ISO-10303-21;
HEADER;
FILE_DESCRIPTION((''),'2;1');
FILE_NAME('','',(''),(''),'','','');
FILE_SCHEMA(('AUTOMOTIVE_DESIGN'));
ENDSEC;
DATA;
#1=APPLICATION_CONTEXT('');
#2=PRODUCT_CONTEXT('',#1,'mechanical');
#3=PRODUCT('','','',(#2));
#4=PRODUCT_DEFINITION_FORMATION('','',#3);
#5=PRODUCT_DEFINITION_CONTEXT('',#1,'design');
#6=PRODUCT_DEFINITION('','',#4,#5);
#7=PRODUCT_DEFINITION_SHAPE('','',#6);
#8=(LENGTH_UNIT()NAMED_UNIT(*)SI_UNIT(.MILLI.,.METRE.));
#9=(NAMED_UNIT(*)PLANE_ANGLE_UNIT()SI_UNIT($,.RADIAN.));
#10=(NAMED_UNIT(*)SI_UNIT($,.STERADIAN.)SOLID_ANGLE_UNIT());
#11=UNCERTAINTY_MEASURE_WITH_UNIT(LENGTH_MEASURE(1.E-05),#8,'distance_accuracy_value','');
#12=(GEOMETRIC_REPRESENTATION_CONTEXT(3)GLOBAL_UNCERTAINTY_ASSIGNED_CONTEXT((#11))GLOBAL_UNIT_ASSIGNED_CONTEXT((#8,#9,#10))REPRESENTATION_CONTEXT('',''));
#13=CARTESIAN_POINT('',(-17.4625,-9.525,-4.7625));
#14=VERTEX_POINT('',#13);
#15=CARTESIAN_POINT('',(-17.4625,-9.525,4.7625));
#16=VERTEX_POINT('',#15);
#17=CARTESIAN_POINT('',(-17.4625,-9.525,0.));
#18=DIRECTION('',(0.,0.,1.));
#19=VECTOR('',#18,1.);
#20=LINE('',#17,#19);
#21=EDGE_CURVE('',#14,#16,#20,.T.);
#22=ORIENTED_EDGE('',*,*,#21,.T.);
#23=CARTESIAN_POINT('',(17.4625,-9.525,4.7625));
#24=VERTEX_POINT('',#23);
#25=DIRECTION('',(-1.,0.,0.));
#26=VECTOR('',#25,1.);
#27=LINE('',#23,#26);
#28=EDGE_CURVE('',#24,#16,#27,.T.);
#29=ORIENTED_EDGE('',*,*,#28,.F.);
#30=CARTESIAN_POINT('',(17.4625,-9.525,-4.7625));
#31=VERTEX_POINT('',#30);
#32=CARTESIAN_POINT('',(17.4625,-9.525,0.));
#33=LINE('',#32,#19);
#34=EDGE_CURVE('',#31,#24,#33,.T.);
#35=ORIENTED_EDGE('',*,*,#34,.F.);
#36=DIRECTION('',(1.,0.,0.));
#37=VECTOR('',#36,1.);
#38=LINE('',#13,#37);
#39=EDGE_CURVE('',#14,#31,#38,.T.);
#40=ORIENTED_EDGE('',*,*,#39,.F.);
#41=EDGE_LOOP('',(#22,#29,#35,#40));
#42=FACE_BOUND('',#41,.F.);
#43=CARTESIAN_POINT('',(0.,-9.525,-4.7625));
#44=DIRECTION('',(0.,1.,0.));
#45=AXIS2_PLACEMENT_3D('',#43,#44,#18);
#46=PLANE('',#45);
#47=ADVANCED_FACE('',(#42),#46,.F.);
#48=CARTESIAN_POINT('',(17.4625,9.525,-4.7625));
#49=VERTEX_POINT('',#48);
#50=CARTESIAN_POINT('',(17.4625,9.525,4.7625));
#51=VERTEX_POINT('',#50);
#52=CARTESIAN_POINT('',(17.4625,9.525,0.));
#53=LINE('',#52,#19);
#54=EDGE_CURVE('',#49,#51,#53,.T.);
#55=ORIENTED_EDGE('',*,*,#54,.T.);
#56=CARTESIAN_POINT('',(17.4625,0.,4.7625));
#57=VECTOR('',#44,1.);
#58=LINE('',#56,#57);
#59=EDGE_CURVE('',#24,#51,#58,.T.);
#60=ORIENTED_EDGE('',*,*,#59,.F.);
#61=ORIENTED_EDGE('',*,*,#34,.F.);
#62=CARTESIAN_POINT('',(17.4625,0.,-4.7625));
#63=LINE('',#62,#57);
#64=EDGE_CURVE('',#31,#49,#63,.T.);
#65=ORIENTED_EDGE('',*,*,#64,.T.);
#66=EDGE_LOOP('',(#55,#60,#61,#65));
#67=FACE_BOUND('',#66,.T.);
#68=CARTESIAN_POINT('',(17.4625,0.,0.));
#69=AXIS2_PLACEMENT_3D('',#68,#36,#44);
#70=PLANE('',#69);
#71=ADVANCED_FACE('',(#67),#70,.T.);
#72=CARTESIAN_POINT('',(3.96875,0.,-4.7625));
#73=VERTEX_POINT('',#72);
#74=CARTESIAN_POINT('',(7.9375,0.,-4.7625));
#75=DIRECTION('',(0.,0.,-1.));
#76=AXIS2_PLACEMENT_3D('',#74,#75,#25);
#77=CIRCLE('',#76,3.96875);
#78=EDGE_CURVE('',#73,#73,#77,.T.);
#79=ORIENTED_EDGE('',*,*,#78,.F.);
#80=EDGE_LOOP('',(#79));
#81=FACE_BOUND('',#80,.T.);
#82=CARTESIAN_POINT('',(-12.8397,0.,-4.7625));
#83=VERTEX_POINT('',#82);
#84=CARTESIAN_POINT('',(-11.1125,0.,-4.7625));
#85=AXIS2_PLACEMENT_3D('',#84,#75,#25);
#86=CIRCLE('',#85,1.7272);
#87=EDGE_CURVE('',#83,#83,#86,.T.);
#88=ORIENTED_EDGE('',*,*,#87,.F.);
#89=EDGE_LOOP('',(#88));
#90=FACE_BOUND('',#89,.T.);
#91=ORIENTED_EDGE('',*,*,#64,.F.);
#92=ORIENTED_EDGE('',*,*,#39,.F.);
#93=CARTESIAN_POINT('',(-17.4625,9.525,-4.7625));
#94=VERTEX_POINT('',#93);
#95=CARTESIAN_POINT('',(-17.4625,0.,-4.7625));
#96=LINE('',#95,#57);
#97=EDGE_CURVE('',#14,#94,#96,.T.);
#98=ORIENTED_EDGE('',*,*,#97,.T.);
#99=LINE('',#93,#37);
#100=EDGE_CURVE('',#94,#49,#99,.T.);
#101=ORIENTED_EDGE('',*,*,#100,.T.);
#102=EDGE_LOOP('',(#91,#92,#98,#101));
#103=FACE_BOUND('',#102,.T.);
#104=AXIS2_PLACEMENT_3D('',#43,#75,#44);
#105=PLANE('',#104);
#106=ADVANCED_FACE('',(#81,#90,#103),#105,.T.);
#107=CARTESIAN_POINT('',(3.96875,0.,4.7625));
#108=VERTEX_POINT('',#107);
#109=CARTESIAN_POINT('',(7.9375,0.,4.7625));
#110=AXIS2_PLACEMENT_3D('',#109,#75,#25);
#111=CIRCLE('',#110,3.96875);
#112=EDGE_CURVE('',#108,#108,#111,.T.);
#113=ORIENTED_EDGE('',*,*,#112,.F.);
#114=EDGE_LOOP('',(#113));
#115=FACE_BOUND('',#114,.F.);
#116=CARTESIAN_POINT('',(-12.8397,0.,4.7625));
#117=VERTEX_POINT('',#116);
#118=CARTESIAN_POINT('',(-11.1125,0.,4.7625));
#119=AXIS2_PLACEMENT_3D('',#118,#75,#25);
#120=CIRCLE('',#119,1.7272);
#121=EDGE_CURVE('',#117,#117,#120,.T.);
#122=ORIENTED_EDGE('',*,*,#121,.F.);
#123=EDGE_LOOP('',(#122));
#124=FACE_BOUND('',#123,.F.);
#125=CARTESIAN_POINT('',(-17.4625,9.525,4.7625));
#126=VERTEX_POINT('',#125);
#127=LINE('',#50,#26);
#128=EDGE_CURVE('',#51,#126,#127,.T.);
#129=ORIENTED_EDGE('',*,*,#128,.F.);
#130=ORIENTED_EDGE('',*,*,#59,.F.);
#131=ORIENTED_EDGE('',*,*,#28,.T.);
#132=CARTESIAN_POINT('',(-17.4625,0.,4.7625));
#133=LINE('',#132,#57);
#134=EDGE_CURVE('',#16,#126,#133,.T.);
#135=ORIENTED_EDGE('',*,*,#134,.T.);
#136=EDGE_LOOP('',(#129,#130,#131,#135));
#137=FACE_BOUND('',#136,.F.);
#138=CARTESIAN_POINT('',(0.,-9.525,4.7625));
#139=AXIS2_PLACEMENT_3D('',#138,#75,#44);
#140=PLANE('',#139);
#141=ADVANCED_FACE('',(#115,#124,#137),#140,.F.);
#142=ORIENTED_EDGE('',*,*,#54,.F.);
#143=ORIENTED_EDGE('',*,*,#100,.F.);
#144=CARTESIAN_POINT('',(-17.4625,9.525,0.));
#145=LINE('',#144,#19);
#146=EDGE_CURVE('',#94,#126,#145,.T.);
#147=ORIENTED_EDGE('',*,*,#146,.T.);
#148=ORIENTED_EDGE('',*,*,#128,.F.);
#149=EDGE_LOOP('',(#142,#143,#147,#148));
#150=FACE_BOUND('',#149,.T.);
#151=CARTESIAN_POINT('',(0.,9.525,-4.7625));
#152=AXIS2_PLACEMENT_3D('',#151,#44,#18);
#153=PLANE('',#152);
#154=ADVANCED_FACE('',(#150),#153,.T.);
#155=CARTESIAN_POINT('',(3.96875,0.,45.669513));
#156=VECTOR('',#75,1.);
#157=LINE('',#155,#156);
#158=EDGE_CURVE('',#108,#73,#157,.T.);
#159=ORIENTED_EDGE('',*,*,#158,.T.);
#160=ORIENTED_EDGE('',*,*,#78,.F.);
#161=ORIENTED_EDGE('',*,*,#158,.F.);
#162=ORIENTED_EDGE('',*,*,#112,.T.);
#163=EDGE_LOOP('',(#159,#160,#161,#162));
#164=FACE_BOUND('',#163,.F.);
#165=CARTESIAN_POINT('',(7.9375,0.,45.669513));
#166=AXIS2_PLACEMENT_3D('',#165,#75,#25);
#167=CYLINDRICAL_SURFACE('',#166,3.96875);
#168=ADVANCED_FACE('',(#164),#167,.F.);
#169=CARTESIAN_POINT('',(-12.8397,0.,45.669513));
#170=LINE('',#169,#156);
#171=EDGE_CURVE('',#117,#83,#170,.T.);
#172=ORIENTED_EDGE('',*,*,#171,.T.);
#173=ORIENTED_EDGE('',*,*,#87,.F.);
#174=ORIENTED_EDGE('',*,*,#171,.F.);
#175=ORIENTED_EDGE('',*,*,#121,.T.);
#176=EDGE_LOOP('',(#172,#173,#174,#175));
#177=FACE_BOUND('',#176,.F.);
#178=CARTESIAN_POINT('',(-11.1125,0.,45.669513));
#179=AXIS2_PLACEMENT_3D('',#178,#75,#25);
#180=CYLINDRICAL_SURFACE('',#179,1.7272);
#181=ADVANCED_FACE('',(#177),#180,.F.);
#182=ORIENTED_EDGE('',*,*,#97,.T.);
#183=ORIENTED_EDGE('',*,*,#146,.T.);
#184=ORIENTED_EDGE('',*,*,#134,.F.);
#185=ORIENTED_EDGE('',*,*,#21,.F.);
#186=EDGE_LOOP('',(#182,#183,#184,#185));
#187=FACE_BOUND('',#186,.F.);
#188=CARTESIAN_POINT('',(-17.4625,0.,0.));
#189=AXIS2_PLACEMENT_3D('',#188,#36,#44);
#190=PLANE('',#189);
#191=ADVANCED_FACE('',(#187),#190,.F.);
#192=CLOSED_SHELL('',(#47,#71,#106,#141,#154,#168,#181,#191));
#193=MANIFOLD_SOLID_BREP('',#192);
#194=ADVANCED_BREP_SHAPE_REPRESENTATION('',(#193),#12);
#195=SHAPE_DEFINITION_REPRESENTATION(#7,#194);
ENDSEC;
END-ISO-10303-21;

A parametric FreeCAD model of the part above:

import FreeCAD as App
import Part
import Sketcher
from FreeCAD import Vector
Q = App.Units.Quantity


def add_polygon(sketch, points):
    """Adds a closed chain of lines whose ends are joined by coincident constraints."""
    first, n = sketch.GeometryCount, len(points)
    for a, b in zip(points, points[1:] + points[:1]):
        sketch.addGeometry(Part.LineSegment(App.Vector(*a, 0), App.Vector(*b, 0)), False)
    for i in range(n):
        sketch.addConstraint(Sketcher.Constraint("Coincident", first + i, 2, first + (i + 1) % n, 1))

doc = App.newDocument("Part")
body = doc.addObject("PartDesign::Body", "Body")

# Sketch on YZ plane
sketch1 = body.newObject("Sketcher::SketchObject", "Sketch")
sketch1.AttachmentSupport = (doc.getObject("YZ_Plane"), [""])
sketch1.MapMode = "FlatFace"
add_polygon(sketch1, [(-9.525, 4.7625), (-9.525, -4.7625), (9.525, -4.7625), (9.525, 4.7625)])  # lines 0-3
sketch1.addConstraint(Sketcher.Constraint("Vertical", 0))
sketch1.addConstraint(Sketcher.Constraint("Horizontal", 1))
sketch1.addConstraint(Sketcher.Constraint("Vertical", 2))
sketch1.addConstraint(Sketcher.Constraint("Horizontal", 3))
sketch1.addConstraint(Sketcher.Constraint("Symmetric", 0, 2, 2, 2, -1, 1))
sketch1.addConstraint(Sketcher.Constraint("DistanceX", 1, 1, 1, 2, Q("0.75 in")))
sketch1.addConstraint(Sketcher.Constraint("DistanceY", 0, 2, 0, 1, Q("0.375 in")))
pad1 = body.newObject("PartDesign::Pad", "Pad")
pad1.Profile = sketch1
pad1.Length = Q("1.375 in")
pad1.Midplane = True

# Sketch on XY plane
sketch2 = body.newObject("Sketcher::SketchObject", "Sketch001")
sketch2.AttachmentSupport = (doc.getObject("XY_Plane"), [""])
sketch2.MapMode = "FlatFace"
sketch2.AttachmentOffset = App.Placement(Vector(0, 0, 0.1875 * 25.4), App.Rotation())
sketch2.addGeometry(Part.Circle(Vector(7.9375, 0, 0), Vector(0, 0, 1), 3.96875), False)
sketch2.addConstraint(Sketcher.Constraint("PointOnObject", 0, 3, -1))
sketch2.addConstraint(Sketcher.Constraint("Diameter", 0, Q("0.3125 in")))
sketch2.addConstraint(Sketcher.Constraint("DistanceX", -1, 1, 0, 3, Q("0.3125 in")))
doc.recompute()
hole = body.newObject("PartDesign::Hole", "Hole")
hole.Profile = sketch2
hole.ThreadType = "None"
hole.Diameter = Q("0.3125 in")
hole.DepthType = "ThroughAll"

# Sketch on XY plane
sketch3 = body.newObject("Sketcher::SketchObject", "Sketch002")
sketch3.AttachmentSupport = (doc.getObject("XY_Plane"), [""])
sketch3.MapMode = "FlatFace"
sketch3.AttachmentOffset = App.Placement(Vector(0, 0, 0.1875 * 25.4), App.Rotation())
sketch3.addGeometry(Part.Circle(Vector(-11.1125, 0, 0), Vector(0, 0, 1), 1.7272), False)
sketch3.addConstraint(Sketcher.Constraint("PointOnObject", 0, 3, -1))
sketch3.addConstraint(Sketcher.Constraint("Diameter", 0, Q("0.136 in")))
sketch3.addConstraint(Sketcher.Constraint("DistanceX", 0, 3, -1, 1, Q("0.4375 in")))
doc.recompute()
hole2 = body.newObject("PartDesign::Hole", "Hole001")
hole2.Profile = sketch3
hole2.ThreadType = "None"
hole2.Diameter = Q("0.136 in")
hole2.DepthType = "ThroughAll"

doc.recompute()
